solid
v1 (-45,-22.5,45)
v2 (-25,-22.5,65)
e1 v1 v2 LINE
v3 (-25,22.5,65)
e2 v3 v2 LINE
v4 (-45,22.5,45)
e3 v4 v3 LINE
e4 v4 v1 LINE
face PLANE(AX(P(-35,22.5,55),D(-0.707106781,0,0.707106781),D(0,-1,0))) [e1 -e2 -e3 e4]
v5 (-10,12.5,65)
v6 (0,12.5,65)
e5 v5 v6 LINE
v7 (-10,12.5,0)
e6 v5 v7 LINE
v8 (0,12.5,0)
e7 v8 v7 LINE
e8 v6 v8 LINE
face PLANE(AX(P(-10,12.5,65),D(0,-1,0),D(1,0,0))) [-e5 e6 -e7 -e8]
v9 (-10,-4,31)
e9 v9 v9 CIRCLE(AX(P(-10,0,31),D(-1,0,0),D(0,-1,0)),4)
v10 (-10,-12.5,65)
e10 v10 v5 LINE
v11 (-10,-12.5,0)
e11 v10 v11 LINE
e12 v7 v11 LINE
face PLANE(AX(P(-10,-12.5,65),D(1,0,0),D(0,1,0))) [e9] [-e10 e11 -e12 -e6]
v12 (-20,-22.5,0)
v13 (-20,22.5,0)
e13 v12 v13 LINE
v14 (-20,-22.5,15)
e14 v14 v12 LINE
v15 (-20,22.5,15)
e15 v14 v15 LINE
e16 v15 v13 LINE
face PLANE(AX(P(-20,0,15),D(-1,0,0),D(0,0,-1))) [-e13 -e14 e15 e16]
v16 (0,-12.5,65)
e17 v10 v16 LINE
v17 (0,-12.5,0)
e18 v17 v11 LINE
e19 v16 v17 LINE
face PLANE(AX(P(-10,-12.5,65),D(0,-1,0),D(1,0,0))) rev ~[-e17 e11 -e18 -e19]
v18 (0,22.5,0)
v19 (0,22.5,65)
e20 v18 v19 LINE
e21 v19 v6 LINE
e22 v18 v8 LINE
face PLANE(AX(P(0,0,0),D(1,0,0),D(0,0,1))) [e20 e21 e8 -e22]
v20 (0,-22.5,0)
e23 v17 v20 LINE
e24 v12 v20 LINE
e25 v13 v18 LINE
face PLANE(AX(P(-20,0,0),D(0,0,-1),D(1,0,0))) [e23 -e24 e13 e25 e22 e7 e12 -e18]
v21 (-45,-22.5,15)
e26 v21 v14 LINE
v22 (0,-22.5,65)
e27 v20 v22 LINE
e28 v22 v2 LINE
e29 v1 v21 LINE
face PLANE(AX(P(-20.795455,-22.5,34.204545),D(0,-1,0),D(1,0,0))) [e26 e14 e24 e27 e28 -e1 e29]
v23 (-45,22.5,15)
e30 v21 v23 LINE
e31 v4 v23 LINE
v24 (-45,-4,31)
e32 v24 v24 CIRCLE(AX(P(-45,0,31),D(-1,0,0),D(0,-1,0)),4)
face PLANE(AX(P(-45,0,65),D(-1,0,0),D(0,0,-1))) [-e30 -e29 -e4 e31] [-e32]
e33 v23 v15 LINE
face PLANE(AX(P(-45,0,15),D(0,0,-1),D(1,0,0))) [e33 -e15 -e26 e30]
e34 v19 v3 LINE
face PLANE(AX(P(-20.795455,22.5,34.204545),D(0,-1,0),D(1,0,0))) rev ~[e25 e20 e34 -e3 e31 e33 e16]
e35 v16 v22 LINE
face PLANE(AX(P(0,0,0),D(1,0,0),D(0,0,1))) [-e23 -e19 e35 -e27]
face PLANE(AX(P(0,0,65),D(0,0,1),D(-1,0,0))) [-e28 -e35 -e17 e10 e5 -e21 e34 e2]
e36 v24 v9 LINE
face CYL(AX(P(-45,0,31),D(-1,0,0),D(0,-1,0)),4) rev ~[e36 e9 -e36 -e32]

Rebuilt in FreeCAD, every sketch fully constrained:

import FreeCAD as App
import Part
import Sketcher
from FreeCAD import Vector


def edges_at(feature, points):
    """Names of the edges that pass closest to the given points."""
    edges = feature.Shape.Edges
    near = lambda p: min(range(len(edges)), key=lambda i: edges[i].distToShape(Part.Vertex(*p))[0])
    return sorted({f"Edge{near(p) + 1}" for p in points})

doc = App.newDocument("Part")
params = doc.addObject("Spreadsheet::Sheet", "Params")
for row, (alias, value) in enumerate([
    ("sketch1_width", "20 mm"),
    ("sketch1_width2", "45 mm"),
    ("sketch1_height", "65 mm"),
    ("sketch1_height2", "50 mm"),
    ("pad1_length", "45 mm"),
    ("chamfer_size", "20 mm"),
    ("sketch2_width", "10 mm"),
    ("sketch2_height", "25 mm"),
    ("sketch3_diameter", "8 mm"),
], start=1):
    params.set(f"A{row}", alias)
    params.set(f"B{row}", "=" + value)
    params.setAlias(f"B{row}", alias)

body = doc.addObject("PartDesign::Body", "Body")

# Sketch on XZ plane
sketch1 = doc.addObject("Sketcher::SketchObject", "Sketch")
body.addObject(sketch1)
sketch1.AttachmentSupport = (doc.XZ_Plane, [""])
sketch1.MapMode = "FlatFace"
sketch1.addGeometry([
    Part.LineSegment(Vector(-20, 0, 0), Vector(0, 0, 0)),  # 0
    Part.LineSegment(Vector(0, 0, 0), Vector(0, 65, 0)),  # 1
    Part.LineSegment(Vector(0, 65, 0), Vector(-45, 65, 0)),  # 2
    Part.LineSegment(Vector(-45, 65, 0), Vector(-45, 15, 0)),  # 3
    Part.LineSegment(Vector(-45, 15, 0), Vector(-20, 15, 0)),  # 4
    Part.LineSegment(Vector(-20, 15, 0), Vector(-20, 0, 0)),  # 5
], False)
sketch1.addConstraint([
    Sketcher.Constraint("Coincident", 0, 2, 1, 1),
    Sketcher.Constraint("Coincident", 1, 2, 2, 1),
    Sketcher.Constraint("Coincident", 2, 2, 3, 1),
    Sketcher.Constraint("Coincident", 3, 2, 4, 1),
    Sketcher.Constraint("Coincident", 4, 2, 5, 1),
    Sketcher.Constraint("Coincident", 5, 2, 0, 1),
    Sketcher.Constraint("Horizontal", 0),
    Sketcher.Constraint("Vertical", 1),
    Sketcher.Constraint("Horizontal", 2),
    Sketcher.Constraint("Vertical", 3),
    Sketcher.Constraint("Horizontal", 4),
    Sketcher.Constraint("Vertical", 5),
    Sketcher.Constraint("Coincident", 0, 2, -1, 1),
    Sketcher.Constraint("DistanceX", 0, 1, 0, 2, 20.0),
    Sketcher.Constraint("DistanceX", 2, 2, 2, 1, 45.0),
    Sketcher.Constraint("DistanceY", 1, 1, 1, 2, 65.0),
    Sketcher.Constraint("DistanceY", 3, 2, 3, 1, 50.0),
])
sketch1.setExpression("Constraints[13]", "Params.sketch1_width")
sketch1.setExpression("Constraints[14]", "Params.sketch1_width2")
sketch1.setExpression("Constraints[15]", "Params.sketch1_height")
sketch1.setExpression("Constraints[16]", "Params.sketch1_height2")
pad1 = doc.addObject("PartDesign::Pad", "Pad")
body.addObject(pad1)
pad1.Profile = sketch1
pad1.setExpression("Length", "Params.pad1_length")
pad1.Midplane = True
doc.recompute()

chamfer = doc.addObject("PartDesign::Chamfer", "Chamfer")
body.addObject(chamfer)
chamfer.Base = (pad1, edges_at(pad1, [(-45, 0, 65)]))
chamfer.setExpression("Size", "Params.chamfer_size")

# Sketch on XY plane
sketch2 = doc.addObject("Sketcher::SketchObject", "Sketch001")
body.addObject(sketch2)
sketch2.AttachmentSupport = (doc.XY_Plane, [""])
sketch2.MapMode = "FlatFace"
sketch2.AttachmentOffset = App.Placement(Vector(0, 0, 65), App.Rotation())
sketch2.addGeometry([
    Part.LineSegment(Vector(-10, 12, 0), Vector(-10, -12, 0)),
    Part.LineSegment(Vector(-10, -12, 0), Vector(0, -12, 0)),
    Part.LineSegment(Vector(0, -12, 0), Vector(0, 12, 0)),
    Part.LineSegment(Vector(0, 12, 0), Vector(-10, 12, 0)),
], False)
sketch2.addConstraint([
    Sketcher.Constraint("Coincident", 0, 2, 1, 1),
    Sketcher.Constraint("Coincident", 1, 2, 2, 1),
    Sketcher.Constraint("Coincident", 2, 2, 3, 1),
    Sketcher.Constraint("Coincident", 3, 2, 0, 1),
    Sketcher.Constraint("Vertical", 0),
    Sketcher.Constraint("Horizontal", 1),
    Sketcher.Constraint("Vertical", 2),
    Sketcher.Constraint("Horizontal", 3),
    Sketcher.Constraint("Symmetric", 1, 2, 2, 2, -1, 1),
    Sketcher.Constraint("DistanceX", 1, 1, 1, 2, 10.0),
    Sketcher.Constraint("DistanceY", 0, 2, 0, 1, 25.0),
])
sketch2.setExpression("Constraints[9]", "Params.sketch2_width")
sketch2.setExpression("Constraints[10]", "Params.sketch2_height")
pocket1 = doc.addObject("PartDesign::Pocket", "Pocket")
body.addObject(pocket1)
pocket1.Profile = sketch2
pocket1.Type = "ThroughAll"

# Sketch on YZ plane
sketch3 = doc.addObject("Sketcher::SketchObject", "Sketch002")
body.addObject(sketch3)
sketch3.AttachmentSupport = (doc.YZ_Plane, [""])
sketch3.MapMode = "FlatFace"
sketch3.AttachmentOffset = App.Placement(Vector(0, 0, -45), App.Rotation())
sketch3.addGeometry(Part.Circle(Vector(0, 31, 0), Vector(0, 0, 1), 4), False)
sketch3.addConstraint([
    Sketcher.Constraint("PointOnObject", 0, 3, -2),
    Sketcher.Constraint("Diameter", 0, 8.0),
    Sketcher.Constraint("DistanceY", -1, 1, 0, 3, 31.0),
])
sketch3.setExpression("Constraints[1]", "Params.sketch3_diameter")
pocket2 = doc.addObject("PartDesign::Pocket", "Pocket001")
body.addObject(pocket2)
pocket2.Profile = sketch3
pocket2.Type = "ThroughAll"
pocket2.Reversed = True

doc.recompute()
